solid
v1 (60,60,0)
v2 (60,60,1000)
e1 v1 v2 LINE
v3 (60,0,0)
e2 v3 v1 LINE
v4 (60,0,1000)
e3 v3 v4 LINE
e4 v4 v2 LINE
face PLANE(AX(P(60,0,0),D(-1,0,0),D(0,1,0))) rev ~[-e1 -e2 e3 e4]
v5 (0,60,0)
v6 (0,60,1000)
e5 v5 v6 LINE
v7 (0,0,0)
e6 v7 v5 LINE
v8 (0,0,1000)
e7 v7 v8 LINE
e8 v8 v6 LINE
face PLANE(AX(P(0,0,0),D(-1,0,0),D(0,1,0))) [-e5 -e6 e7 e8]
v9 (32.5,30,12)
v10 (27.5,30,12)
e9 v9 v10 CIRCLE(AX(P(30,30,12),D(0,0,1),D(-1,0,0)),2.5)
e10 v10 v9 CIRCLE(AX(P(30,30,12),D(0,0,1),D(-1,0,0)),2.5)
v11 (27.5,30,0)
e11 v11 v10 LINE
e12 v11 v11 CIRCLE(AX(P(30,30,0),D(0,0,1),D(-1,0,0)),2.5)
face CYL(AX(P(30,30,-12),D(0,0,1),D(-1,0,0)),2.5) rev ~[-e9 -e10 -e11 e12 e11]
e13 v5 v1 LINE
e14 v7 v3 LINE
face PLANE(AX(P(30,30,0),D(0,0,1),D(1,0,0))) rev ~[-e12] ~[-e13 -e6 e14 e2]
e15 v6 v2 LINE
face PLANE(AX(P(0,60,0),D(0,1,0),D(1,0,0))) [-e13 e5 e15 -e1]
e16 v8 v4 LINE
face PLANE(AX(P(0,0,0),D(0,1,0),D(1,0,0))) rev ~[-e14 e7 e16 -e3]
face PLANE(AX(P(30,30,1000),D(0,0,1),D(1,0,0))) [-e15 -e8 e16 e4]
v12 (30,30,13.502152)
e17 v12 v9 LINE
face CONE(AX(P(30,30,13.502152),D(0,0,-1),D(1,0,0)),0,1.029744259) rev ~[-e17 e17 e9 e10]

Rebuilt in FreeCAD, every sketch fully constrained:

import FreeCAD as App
import Part
import Sketcher

V = App.Vector


def add_polygon(sketch, points):
    """Adds a closed chain of lines whose ends are joined by coincident constraints."""
    first, n = sketch.GeometryCount, len(points)
    for a, b in zip(points, points[1:] + points[:1]):
        sketch.addGeometry(Part.LineSegment(App.Vector(*a, 0), App.Vector(*b, 0)), False)
    for i in range(n):
        sketch.addConstraint(Sketcher.Constraint("Coincident", first + i, 2, first + (i + 1) % n, 1))

doc = App.newDocument("Part")
body = doc.addObject("PartDesign::Body", "Body")

# Sketch on XY plane
sketch1 = body.newObject("Sketcher::SketchObject", "Sketch")
sketch1.AttachmentSupport = (doc.getObject("XY_Plane"), [""])
sketch1.MapMode = "FlatFace"
add_polygon(sketch1, [(0, 60), (0, 0), (60, 0), (60, 60)])  # lines 0-3
sketch1.addConstraint([
    Sketcher.Constraint("Vertical", 0),
    Sketcher.Constraint("Horizontal", 1),
    Sketcher.Constraint("Vertical", 2),
    Sketcher.Constraint("Horizontal", 3),
    Sketcher.Constraint("Coincident", 0, 2, -1, 1),
    Sketcher.Constraint("Equal", 3, 0),
    Sketcher.Constraint("DistanceX", 1, 1, 1, 2, 60.0),
])
pad1 = body.newObject("PartDesign::Pad", "Pad")
pad1.Profile = sketch1
pad1.Length = 1000

# Sketch on XY plane
sketch2 = body.newObject("Sketcher::SketchObject", "Sketch001")
sketch2.AttachmentSupport = (doc.getObject("XY_Plane"), [""])
sketch2.MapMode = "FlatFace"
sketch2.addGeometry(Part.Circle(V(30, 30, 0), V(0, 0, 1), 2.5), False)
sketch2.addConstraint([
    Sketcher.Constraint("Diameter", 0, 5.0),
    Sketcher.Constraint("DistanceX", -1, 1, 0, 3, 30.0),
    Sketcher.Constraint("DistanceY", -1, 1, 0, 3, 30.0),
])
doc.recompute()
hole = body.newObject("PartDesign::Hole", "Hole")
hole.Profile = sketch2
hole.ThreadType = "None"
hole.Diameter = 5
hole.DepthType = "Dimension"
hole.Depth = 12
hole.DrillPoint = "Angled"
hole.DrillPointAngle = 118
hole.Reversed = True

doc.recompute()
